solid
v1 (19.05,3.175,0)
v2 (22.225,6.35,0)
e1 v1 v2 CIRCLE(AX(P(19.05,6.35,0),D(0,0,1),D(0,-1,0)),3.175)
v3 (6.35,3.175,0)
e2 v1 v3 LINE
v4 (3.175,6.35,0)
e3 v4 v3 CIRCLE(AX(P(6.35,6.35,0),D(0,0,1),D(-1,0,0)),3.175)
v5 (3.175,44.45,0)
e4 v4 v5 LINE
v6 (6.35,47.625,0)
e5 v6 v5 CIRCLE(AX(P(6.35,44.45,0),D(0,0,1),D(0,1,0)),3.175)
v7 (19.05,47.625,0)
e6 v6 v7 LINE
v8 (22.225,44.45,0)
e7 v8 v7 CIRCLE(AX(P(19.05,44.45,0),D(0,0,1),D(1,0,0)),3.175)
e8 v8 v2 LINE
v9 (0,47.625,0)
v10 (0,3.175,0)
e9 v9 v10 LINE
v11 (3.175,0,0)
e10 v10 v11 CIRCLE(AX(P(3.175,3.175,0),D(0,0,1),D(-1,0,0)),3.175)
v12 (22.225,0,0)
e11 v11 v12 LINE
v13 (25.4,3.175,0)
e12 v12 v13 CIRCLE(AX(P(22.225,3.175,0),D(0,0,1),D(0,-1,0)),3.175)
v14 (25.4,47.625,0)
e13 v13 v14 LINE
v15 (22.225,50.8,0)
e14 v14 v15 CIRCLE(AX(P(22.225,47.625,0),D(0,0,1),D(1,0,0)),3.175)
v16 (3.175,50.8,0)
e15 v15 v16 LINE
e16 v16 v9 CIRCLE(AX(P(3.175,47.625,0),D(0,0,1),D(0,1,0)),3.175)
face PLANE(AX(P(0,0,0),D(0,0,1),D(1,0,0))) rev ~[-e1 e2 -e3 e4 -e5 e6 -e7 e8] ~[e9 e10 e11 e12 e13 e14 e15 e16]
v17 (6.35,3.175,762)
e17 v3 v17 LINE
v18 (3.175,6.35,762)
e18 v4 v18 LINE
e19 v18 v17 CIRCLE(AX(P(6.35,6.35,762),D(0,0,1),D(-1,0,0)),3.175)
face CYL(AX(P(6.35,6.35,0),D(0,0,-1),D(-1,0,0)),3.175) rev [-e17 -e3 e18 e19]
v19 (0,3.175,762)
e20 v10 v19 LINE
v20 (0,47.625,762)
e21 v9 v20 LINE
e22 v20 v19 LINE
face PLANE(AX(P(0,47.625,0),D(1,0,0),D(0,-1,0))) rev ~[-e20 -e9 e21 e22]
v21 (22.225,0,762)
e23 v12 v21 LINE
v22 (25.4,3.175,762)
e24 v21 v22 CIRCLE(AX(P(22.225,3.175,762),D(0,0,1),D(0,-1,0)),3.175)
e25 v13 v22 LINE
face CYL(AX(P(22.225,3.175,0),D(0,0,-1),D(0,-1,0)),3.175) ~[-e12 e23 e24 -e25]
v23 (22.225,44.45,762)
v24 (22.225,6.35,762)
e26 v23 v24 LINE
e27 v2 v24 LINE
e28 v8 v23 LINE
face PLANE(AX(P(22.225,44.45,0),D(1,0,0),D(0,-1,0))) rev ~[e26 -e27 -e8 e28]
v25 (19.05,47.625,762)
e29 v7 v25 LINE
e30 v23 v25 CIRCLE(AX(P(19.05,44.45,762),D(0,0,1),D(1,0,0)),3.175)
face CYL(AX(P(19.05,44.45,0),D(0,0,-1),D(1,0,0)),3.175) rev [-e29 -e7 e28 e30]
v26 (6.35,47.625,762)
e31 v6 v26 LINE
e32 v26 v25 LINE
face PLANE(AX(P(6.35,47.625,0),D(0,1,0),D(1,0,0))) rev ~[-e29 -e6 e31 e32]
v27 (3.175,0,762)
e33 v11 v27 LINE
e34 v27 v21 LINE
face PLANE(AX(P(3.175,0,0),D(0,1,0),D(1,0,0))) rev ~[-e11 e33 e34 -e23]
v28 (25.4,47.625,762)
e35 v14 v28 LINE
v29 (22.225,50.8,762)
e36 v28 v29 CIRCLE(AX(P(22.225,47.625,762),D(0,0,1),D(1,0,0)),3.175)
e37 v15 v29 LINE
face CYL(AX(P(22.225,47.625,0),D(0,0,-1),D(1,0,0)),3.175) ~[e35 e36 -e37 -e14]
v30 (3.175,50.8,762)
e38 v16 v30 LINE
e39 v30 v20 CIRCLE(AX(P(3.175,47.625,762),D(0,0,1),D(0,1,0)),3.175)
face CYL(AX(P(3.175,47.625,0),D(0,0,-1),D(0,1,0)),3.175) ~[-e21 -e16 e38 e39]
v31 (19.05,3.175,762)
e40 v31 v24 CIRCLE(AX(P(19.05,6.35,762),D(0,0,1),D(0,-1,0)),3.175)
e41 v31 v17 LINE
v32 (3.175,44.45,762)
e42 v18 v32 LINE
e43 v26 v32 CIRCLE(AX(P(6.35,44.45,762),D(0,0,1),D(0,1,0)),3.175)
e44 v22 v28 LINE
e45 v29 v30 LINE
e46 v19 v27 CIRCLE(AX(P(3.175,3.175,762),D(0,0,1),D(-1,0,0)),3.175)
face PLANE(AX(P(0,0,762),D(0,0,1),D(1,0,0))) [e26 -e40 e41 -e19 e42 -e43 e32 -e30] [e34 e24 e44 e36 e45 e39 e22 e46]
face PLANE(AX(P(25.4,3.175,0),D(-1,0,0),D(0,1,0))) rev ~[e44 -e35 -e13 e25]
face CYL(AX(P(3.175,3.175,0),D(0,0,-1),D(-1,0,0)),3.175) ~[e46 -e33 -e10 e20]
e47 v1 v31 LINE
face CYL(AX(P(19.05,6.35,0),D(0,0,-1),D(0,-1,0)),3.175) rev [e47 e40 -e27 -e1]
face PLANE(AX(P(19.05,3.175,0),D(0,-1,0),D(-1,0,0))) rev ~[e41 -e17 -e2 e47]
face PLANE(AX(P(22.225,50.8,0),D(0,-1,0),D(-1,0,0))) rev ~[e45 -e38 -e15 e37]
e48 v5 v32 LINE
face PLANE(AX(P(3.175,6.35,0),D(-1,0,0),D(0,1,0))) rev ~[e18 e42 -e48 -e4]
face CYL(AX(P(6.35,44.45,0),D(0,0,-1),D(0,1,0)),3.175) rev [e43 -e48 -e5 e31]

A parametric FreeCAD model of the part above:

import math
import FreeCAD as App
import Part
import Sketcher
Q = App.Units.Quantity

doc = App.newDocument("Part")
body = doc.addObject("PartDesign::Body", "Body")

sketch1 = body.newObject("Sketcher::SketchObject", "Sketch")
sketch1.AttachmentSupport = (doc.getObject("XY_Plane"), [""])
sketch1.MapMode = "FlatFace"
sketch1.addGeometry(Part.ArcOfCircle(Part.Circle(App.Vector(3.2, 3.2, 0), App.Vector(0, 0, 1), 3.2), math.radians(180), math.radians(270)), False)
sketch1.addGeometry(Part.LineSegment(App.Vector(3.2, 0, 0), App.Vector(22.2, 0, 0)), False)
sketch1.addGeometry(Part.ArcOfCircle(Part.Circle(App.Vector(22.2, 3.2, 0), App.Vector(0, 0, 1), 3.2), math.radians(-90), math.radians(0)), False)
sketch1.addGeometry(Part.LineSegment(App.Vector(25.4, 3.2, 0), App.Vector(25.4, 47.6, 0)), False)
sketch1.addGeometry(Part.ArcOfCircle(Part.Circle(App.Vector(22.2, 47.6, 0), App.Vector(0, 0, 1), 3.2), math.radians(0), math.radians(90)), False)
sketch1.addGeometry(Part.LineSegment(App.Vector(22.2, 50.8, 0), App.Vector(3.2, 50.8, 0)), False)
sketch1.addGeometry(Part.ArcOfCircle(Part.Circle(App.Vector(3.2, 47.6, 0), App.Vector(0, 0, 1), 3.2), math.radians(90), math.radians(180)), False)
sketch1.addGeometry(Part.LineSegment(App.Vector(0, 47.6, 0), App.Vector(0, 3.2, 0)), False)
sketch1.addGeometry(Part.ArcOfCircle(Part.Circle(App.Vector(6.3, 44.5, 0), App.Vector(0, 0, 1), 3.2), math.radians(90), math.radians(180)), False)
sketch1.addGeometry(Part.LineSegment(App.Vector(6.3, 47.6, 0), App.Vector(19.1, 47.6, 0)), False)
sketch1.addGeometry(Part.ArcOfCircle(Part.Circle(App.Vector(19.1, 44.5, 0), App.Vector(0, 0, 1), 3.2), math.radians(0), math.radians(90)), False)
sketch1.addGeometry(Part.LineSegment(App.Vector(22.2, 44.5, 0), App.Vector(22.2, 6.3, 0)), False)
sketch1.addGeometry(Part.ArcOfCircle(Part.Circle(App.Vector(19.1, 6.3, 0), App.Vector(0, 0, 1), 3.2), math.radians(-90), math.radians(0)), False)
sketch1.addGeometry(Part.LineSegment(App.Vector(19.1, 3.2, 0), App.Vector(6.3, 3.2, 0)), False)
sketch1.addGeometry(Part.ArcOfCircle(Part.Circle(App.Vector(6.3, 6.3, 0), App.Vector(0, 0, 1), 3.2), math.radians(180), math.radians(270)), False)
sketch1.addGeometry(Part.LineSegment(App.Vector(3.2, 6.3, 0), App.Vector(3.2, 44.5, 0)), False)
sketch1.addConstraint(Sketcher.Constraint("Tangent", 0, 2, 1, 1))
sketch1.addConstraint(Sketcher.Constraint("Tangent", 1, 2, 2, 1))
sketch1.addConstraint(Sketcher.Constraint("Tangent", 2, 2, 3, 1))
sketch1.addConstraint(Sketcher.Constraint("Tangent", 3, 2, 4, 1))
sketch1.addConstraint(Sketcher.Constraint("Tangent", 4, 2, 5, 1))
sketch1.addConstraint(Sketcher.Constraint("Tangent", 5, 2, 6, 1))
sketch1.addConstraint(Sketcher.Constraint("Tangent", 6, 2, 7, 1))
sketch1.addConstraint(Sketcher.Constraint("Tangent", 7, 2, 0, 1))
sketch1.addConstraint(Sketcher.Constraint("Tangent", 8, 1, 9, 1))
sketch1.addConstraint(Sketcher.Constraint("Tangent", 9, 2, 10, 2))
sketch1.addConstraint(Sketcher.Constraint("Tangent", 10, 1, 11, 1))
sketch1.addConstraint(Sketcher.Constraint("Tangent", 11, 2, 12, 2))
sketch1.addConstraint(Sketcher.Constraint("Tangent", 12, 1, 13, 1))
sketch1.addConstraint(Sketcher.Constraint("Tangent", 13, 2, 14, 2))
sketch1.addConstraint(Sketcher.Constraint("Tangent", 14, 1, 15, 1))
sketch1.addConstraint(Sketcher.Constraint("Tangent", 15, 2, 8, 2))
sketch1.addConstraint(Sketcher.Constraint("Horizontal", 1))
sketch1.addConstraint(Sketcher.Constraint("Vertical", 3))
sketch1.addConstraint(Sketcher.Constraint("Horizontal", 5))
sketch1.addConstraint(Sketcher.Constraint("Vertical", 7))
sketch1.addConstraint(Sketcher.Constraint("Horizontal", 9))
sketch1.addConstraint(Sketcher.Constraint("Vertical", 11))
sketch1.addConstraint(Sketcher.Constraint("Horizontal", 13))
sketch1.addConstraint(Sketcher.Constraint("Vertical", 15))
sketch1.addConstraint(Sketcher.Constraint("Equal", 0, 2))
sketch1.addConstraint(Sketcher.Constraint("Equal", 2, 4))
sketch1.addConstraint(Sketcher.Constraint("Equal", 4, 6))
sketch1.addConstraint(Sketcher.Constraint("Equal", 6, 8))
sketch1.addConstraint(Sketcher.Constraint("Equal", 8, 10))
sketch1.addConstraint(Sketcher.Constraint("Equal", 10, 12))
sketch1.addConstraint(Sketcher.Constraint("Equal", 12, 14))
sketch1.addConstraint(Sketcher.Constraint("PointOnObject", 0, 2, -1))
sketch1.addConstraint(Sketcher.Constraint("PointOnObject", 6, 2, -2))
sketch1.addConstraint(Sketcher.Constraint("Horizontal", 6, 2, 8, 1))
sketch1.addConstraint(Sketcher.Constraint("Horizontal", 7, 2, 12, 1))
sketch1.addConstraint(Sketcher.Constraint("Vertical", 4, 2, 10, 1))
sketch1.addConstraint(Sketcher.Constraint("Vertical", 5, 2, 14, 1))
sketch1.addConstraint(Sketcher.Constraint("DistanceX", -1, 1, 2, 2, Q("1 in")))
sketch1.addConstraint(Sketcher.Constraint("DistanceY", -1, 1, 4, 2, Q("2 in")))
sketch1.addConstraint(Sketcher.Constraint("Radius", 0, Q("0.125 in")))
pad1 = body.newObject("PartDesign::Pad", "Pad")
pad1.Profile = sketch1
pad1.Length = Q("30 in")

doc.recompute()
